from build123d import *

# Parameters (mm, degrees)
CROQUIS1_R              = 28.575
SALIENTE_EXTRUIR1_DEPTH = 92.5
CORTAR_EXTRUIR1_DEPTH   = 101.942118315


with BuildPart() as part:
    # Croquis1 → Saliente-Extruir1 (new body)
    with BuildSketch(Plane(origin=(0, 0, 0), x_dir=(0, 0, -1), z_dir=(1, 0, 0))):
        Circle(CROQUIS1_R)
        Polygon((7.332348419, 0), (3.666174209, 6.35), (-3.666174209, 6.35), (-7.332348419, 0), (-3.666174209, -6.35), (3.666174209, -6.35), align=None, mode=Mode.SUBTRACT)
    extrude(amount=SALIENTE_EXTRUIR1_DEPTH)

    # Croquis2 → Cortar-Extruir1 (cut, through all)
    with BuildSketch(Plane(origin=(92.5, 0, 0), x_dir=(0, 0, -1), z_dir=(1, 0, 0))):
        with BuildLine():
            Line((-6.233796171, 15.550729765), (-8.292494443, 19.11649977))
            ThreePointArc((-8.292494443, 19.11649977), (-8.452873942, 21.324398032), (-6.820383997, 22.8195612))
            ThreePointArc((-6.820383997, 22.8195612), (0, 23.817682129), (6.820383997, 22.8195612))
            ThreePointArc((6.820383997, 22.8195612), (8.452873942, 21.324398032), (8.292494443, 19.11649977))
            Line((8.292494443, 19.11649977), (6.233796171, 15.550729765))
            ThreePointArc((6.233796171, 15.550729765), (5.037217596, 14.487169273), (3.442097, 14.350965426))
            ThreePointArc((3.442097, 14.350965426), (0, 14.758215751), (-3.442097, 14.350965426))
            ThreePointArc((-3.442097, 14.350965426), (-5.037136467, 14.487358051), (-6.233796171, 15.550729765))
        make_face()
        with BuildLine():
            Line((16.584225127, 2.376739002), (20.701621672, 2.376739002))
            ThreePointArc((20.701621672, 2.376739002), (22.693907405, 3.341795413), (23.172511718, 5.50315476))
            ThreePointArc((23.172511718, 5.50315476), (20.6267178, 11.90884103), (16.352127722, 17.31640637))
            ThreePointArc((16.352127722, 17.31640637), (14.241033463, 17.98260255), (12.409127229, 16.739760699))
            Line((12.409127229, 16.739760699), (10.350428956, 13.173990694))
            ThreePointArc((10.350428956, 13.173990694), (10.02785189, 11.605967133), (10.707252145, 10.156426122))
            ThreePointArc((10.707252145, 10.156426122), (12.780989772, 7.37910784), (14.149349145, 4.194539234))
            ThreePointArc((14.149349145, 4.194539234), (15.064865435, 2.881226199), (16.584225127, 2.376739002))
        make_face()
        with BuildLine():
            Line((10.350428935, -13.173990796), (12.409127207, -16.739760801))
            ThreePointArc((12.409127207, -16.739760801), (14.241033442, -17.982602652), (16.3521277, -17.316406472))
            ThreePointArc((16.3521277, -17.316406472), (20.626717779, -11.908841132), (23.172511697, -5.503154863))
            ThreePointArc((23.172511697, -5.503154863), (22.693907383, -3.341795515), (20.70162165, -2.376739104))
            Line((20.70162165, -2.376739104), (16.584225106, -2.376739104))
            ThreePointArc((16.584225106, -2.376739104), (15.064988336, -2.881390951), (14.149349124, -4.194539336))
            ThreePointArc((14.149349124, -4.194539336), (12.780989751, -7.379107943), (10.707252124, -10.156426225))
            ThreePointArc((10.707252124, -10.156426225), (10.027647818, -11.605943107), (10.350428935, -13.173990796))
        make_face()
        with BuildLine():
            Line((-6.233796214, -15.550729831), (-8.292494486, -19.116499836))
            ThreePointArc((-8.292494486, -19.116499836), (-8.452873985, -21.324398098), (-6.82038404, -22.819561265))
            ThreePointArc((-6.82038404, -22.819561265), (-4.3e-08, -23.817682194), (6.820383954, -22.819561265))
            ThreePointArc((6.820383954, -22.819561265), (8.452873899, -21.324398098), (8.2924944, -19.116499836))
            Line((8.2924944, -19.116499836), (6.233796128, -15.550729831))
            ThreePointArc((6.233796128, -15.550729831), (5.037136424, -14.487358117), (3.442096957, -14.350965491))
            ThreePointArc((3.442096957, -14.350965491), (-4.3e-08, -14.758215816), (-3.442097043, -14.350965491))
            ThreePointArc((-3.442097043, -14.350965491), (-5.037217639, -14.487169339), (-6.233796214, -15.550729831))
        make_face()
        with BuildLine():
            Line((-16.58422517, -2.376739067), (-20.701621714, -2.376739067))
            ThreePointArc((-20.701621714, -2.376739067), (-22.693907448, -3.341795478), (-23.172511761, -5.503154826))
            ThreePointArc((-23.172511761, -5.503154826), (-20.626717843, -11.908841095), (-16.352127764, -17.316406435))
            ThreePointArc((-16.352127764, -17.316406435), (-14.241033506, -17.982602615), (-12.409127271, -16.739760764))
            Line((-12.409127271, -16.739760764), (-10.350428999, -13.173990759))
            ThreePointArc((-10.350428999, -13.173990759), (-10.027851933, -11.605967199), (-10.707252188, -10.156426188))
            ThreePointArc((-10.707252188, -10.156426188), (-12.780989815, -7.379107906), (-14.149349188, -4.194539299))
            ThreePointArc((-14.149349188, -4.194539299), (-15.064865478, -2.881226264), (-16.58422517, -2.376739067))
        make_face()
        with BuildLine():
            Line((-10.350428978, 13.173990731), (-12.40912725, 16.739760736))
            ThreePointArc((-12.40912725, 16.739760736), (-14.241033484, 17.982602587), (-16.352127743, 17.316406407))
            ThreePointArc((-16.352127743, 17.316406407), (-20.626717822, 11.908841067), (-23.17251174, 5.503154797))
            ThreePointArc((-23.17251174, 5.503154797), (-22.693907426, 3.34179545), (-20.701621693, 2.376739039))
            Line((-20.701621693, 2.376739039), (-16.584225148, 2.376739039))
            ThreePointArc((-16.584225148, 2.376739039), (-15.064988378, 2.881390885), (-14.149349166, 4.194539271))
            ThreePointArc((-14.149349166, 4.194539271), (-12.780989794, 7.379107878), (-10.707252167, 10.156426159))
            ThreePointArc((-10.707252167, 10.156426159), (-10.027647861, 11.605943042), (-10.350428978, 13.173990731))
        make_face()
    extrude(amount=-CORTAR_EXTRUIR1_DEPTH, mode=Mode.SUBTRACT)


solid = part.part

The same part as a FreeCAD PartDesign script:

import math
import FreeCAD as App
import Part
import Sketcher

V = App.Vector
Q = App.Units.Quantity


def add_polygon(sketch, points):
    """Adds a closed chain of lines whose ends are joined by coincident constraints."""
    first, n = sketch.GeometryCount, len(points)
    for a, b in zip(points, points[1:] + points[:1]):
        sketch.addGeometry(Part.LineSegment(App.Vector(*a, 0), App.Vector(*b, 0)), False)
    for i in range(n):
        sketch.addConstraint(Sketcher.Constraint("Coincident", first + i, 2, first + (i + 1) % n, 1))

doc = App.newDocument("Part")
body = doc.addObject("PartDesign::Body", "Body")

# Sketch on YZ plane
sketch1 = body.newObject("Sketcher::SketchObject", "Sketch")
sketch1.AttachmentSupport = (doc.getObject("YZ_Plane"), [""])
sketch1.MapMode = "FlatFace"
sketch1.addGeometry(Part.Circle(V(0, 0, 0), V(0, 0, 1), 29), False)  # 0
add_polygon(sketch1, [(6, -4), (0, -7), (-6, -4), (-6, 4), (0, 7), (6, 4)])  # lines 1-6
sketch1.addConstraint(Sketcher.Constraint("Vertical", 3))
sketch1.addConstraint(Sketcher.Constraint("Vertical", 6))
sketch1.addConstraint(Sketcher.Constraint("Coincident", 0, 3, -1, 1))
sketch1.addConstraint(Sketcher.Constraint("Symmetric", 1, 2, 4, 2, -1, 1))
sketch1.addConstraint(Sketcher.Constraint("Symmetric", 2, 2, 5, 2, -1, 1))
sketch1.addConstraint(Sketcher.Constraint("PointOnObject", 1, 2, -2))
sketch1.addConstraint(Sketcher.Constraint("Parallel", 1, 4))
sketch1.addConstraint(Sketcher.Constraint("Horizontal", 3, 2, 5, 2))
sketch1.addConstraint(Sketcher.Constraint("Diameter", 0, Q("57.15 mm")))
sketch1.addConstraint(Sketcher.Constraint("Angle", 1, Q("-150 deg")))
sketch1.addConstraint(Sketcher.Constraint("DistanceX", 3, 2, 5, 2, Q("12.7 mm")))
sketch1.addConstraint(Sketcher.Constraint("DistanceY", 3, 1, 3, 2, Q("7.332348 mm")))
pad1 = body.newObject("PartDesign::Pad", "Pad")
pad1.Profile = sketch1
pad1.Length = 92.5

# Sketch on YZ plane
sketch2 = body.newObject("Sketcher::SketchObject", "Sketch001")
sketch2.AttachmentSupport = (doc.getObject("YZ_Plane"), [""])
sketch2.MapMode = "FlatFace"
sketch2.AttachmentOffset = App.Placement(V(0, 0, 92.5), App.Rotation())
sketch2.addGeometry(Part.LineSegment(V(19.1165, 8.292494, 0), V(15.55073, 6.233796, 0)), False)
sketch2.addGeometry(Part.ArcOfCircle(Part.Circle(V(16.82098, 4.034236, 0), V(0, 0, 1), 2.54), math.radians(120.006515), math.radians(193.48116)), False)
sketch2.addGeometry(Part.ArcOfCircle(Part.Circle(V(0.008216, 0, 0), V(0, 0, 1), 14.75), math.radians(-13.495118), math.radians(13.495118)), False)
sketch2.addGeometry(Part.ArcOfCircle(Part.Circle(V(16.82003, -4.034644, 0), V(0, 0, 1), 2.539171), math.radians(166.504882), math.radians(240.007443)), False)
sketch2.addGeometry(Part.LineSegment(V(15.55073, -6.233796, 0), V(19.1165, -8.292494, 0)), False)
sketch2.addGeometry(Part.ArcOfCircle(Part.Circle(V(20.386076, -6.092545, 0), V(0, 0, 1), 2.54), math.radians(-119.98896), math.radians(-16.651563)), False)
sketch2.addGeometry(Part.ArcOfCircle(Part.Circle(V(0.016015, 0, 0), V(0, 0, 1), 23.801667), math.radians(-16.651563), math.radians(16.651563)), False)
sketch2.addGeometry(Part.ArcOfCircle(Part.Circle(V(20.386076, 6.092545, 0), V(0, 0, 1), 2.54), math.radians(16.651563), math.radians(119.98896)), False)
sketch2.addGeometry(Part.LineSegment(V(2.376739, -16.584225, 0), V(2.376739, -20.701622, 0)), False)
sketch2.addGeometry(Part.ArcOfCircle(Part.Circle(V(4.916739, -20.701132, 0), V(0, 0, 1), 2.54), math.radians(-179.98896), math.radians(-76.651563)), False)
sketch2.addGeometry(Part.ArcOfCircle(Part.Circle(V(0.008008, -0.01387, 0), V(0, 0, 1), 23.801667), math.radians(-76.651563), math.radians(-43.348437)), False)
sketch2.addGeometry(Part.ArcOfCircle(Part.Circle(V(15.469337, -14.608587, 0), V(0, 0, 1), 2.54), math.radians(-43.348437), math.radians(59.98896)), False)
sketch2.addGeometry(Part.LineSegment(V(16.739761, -12.409127, 0), V(13.173991, -10.350429, 0)), False)
sketch2.addGeometry(Part.ArcOfCircle(Part.Circle(V(11.904241, -12.550278, 0), V(0, 0, 1), 2.54), math.radians(60.006515), math.radians(133.48116)), False)
sketch2.addGeometry(Part.ArcOfCircle(Part.Circle(V(0.004108, -0.007115, 0), V(0, 0, 1), 14.75), math.radians(-73.495118), math.radians(-46.504882)), False)
sketch2.addGeometry(Part.ArcOfCircle(Part.Circle(V(4.91591, -16.583895, 0), V(0, 0, 1), 2.539171), math.radians(106.504882), math.radians(180.007443)), False)
sketch2.addGeometry(Part.LineSegment(V(-13.173991, -10.350429, 0), V(-16.739761, -12.409127, 0)), False)
sketch2.addGeometry(Part.ArcOfCircle(Part.Circle(V(-15.469337, -14.608587, 0), V(0, 0, 1), 2.54), math.radians(120.01104), math.radians(223.348437)), False)
sketch2.addGeometry(Part.ArcOfCircle(Part.Circle(V(-0.008008, -0.01387, 0), V(0, 0, 1), 23.801667), math.radians(-136.651563), math.radians(-103.348437)), False)
sketch2.addGeometry(Part.ArcOfCircle(Part.Circle(V(-4.916739, -20.701132, 0), V(0, 0, 1), 2.54), math.radians(-103.348437), math.radians(-0.01104)), False)
sketch2.addGeometry(Part.LineSegment(V(-2.376739, -20.701622, 0), V(-2.376739, -16.584225, 0)), False)
sketch2.addGeometry(Part.ArcOfCircle(Part.Circle(V(-4.916739, -16.584514, 0), V(0, 0, 1), 2.54), math.radians(0.006515), math.radians(73.48116)), False)
sketch2.addGeometry(Part.ArcOfCircle(Part.Circle(V(-0.004108, -0.007115, 0), V(0, 0, 1), 14.75), math.radians(-133.495118), math.radians(-106.504882)), False)
sketch2.addGeometry(Part.ArcOfCircle(Part.Circle(V(-11.904119, -12.549251, 0), V(0, 0, 1), 2.539171), math.radians(46.504882), math.radians(120.007443)), False)
sketch2.addGeometry(Part.LineSegment(V(-15.55073, 6.233796, 0), V(-19.1165, 8.292494, 0)), False)
sketch2.addGeometry(Part.ArcOfCircle(Part.Circle(V(-20.386076, 6.092545, 0), V(0, 0, 1), 2.54), math.radians(60.01104), math.radians(163.348437)), False)
sketch2.addGeometry(Part.ArcOfCircle(Part.Circle(V(-0.016016, 0, 0), V(0, 0, 1), 23.801667), math.radians(163.348437), math.radians(196.651563)), False)
sketch2.addGeometry(Part.ArcOfCircle(Part.Circle(V(-20.386076, -6.092545, 0), V(0, 0, 1), 2.54), math.radians(-163.348437), math.radians(-60.01104)), False)
sketch2.addGeometry(Part.LineSegment(V(-19.1165, -8.292494, 0), V(-15.55073, -6.233796, 0)), False)
sketch2.addGeometry(Part.ArcOfCircle(Part.Circle(V(-16.82098, -4.034236, 0), V(0, 0, 1), 2.54), math.radians(-59.993485), math.radians(13.48116)), False)
sketch2.addGeometry(Part.ArcOfCircle(Part.Circle(V(-0.008216, 0, 0), V(0, 0, 1), 14.75), math.radians(166.504882), math.radians(193.495118)), False)
sketch2.addGeometry(Part.ArcOfCircle(Part.Circle(V(-16.82003, 4.034644, 0), V(0, 0, 1), 2.539171), math.radians(-13.495118), math.radians(60.007443)), False)
sketch2.addGeometry(Part.LineSegment(V(-2.376739, 16.584225, 0), V(-2.376739, 20.701622, 0)), False)
sketch2.addGeometry(Part.ArcOfCircle(Part.Circle(V(-4.916739, 20.701132, 0), V(0, 0, 1), 2.54), math.radians(0.01104), math.radians(103.348437)), False)
sketch2.addGeometry(Part.ArcOfCircle(Part.Circle(V(-0.008008, 0.01387, 0), V(0, 0, 1), 23.801667), math.radians(103.348437), math.radians(136.651563)), False)
sketch2.addGeometry(Part.ArcOfCircle(Part.Circle(V(-15.469337, 14.608587, 0), V(0, 0, 1), 2.54), math.radians(136.651563), math.radians(239.98896)), False)
sketch2.addGeometry(Part.LineSegment(V(-16.739761, 12.409127, 0), V(-13.173991, 10.350429, 0)), False)
sketch2.addGeometry(Part.ArcOfCircle(Part.Circle(V(-11.904241, 12.550278, 0), V(0, 0, 1), 2.54), math.radians(-119.993485), math.radians(-46.51884)), False)
sketch2.addGeometry(Part.ArcOfCircle(Part.Circle(V(-0.004108, 0.007115, 0), V(0, 0, 1), 14.75), math.radians(106.504882), math.radians(133.495118)), False)
sketch2.addGeometry(Part.ArcOfCircle(Part.Circle(V(-4.91591, 16.583895, 0), V(0, 0, 1), 2.539171), math.radians(-73.495118), math.radians(0.007443)), False)
sketch2.addGeometry(Part.LineSegment(V(13.173991, 10.350429, 0), V(16.739761, 12.409127, 0)), False)
sketch2.addGeometry(Part.ArcOfCircle(Part.Circle(V(15.469337, 14.608587, 0), V(0, 0, 1), 2.54), math.radians(-59.98896), math.radians(43.348437)), False)
sketch2.addGeometry(Part.ArcOfCircle(Part.Circle(V(0.008008, 0.01387, 0), V(0, 0, 1), 23.801667), math.radians(43.348437), math.radians(76.651563)), False)
sketch2.addGeometry(Part.ArcOfCircle(Part.Circle(V(4.916739, 20.701132, 0), V(0, 0, 1), 2.54), math.radians(76.651563), math.radians(179.98896)), False)
sketch2.addGeometry(Part.LineSegment(V(2.376739, 20.701622, 0), V(2.376739, 16.584225, 0)), False)
sketch2.addGeometry(Part.ArcOfCircle(Part.Circle(V(4.916739, 16.584514, 0), V(0, 0, 1), 2.54), math.radians(-179.993485), math.radians(-106.51884)), False)
sketch2.addGeometry(Part.ArcOfCircle(Part.Circle(V(0.004108, 0.007115, 0), V(0, 0, 1), 14.75), math.radians(46.504882), math.radians(73.495118)), False)
sketch2.addGeometry(Part.ArcOfCircle(Part.Circle(V(11.904119, 12.549251, 0), V(0, 0, 1), 2.539171), math.radians(-133.495118), math.radians(-59.992557)), False)
sketch2.addConstraint(Sketcher.Constraint("Coincident", 0, 2, 1, 1))
sketch2.addConstraint(Sketcher.Constraint("Coincident", 1, 2, 2, 2))
sketch2.addConstraint(Sketcher.Constraint("Tangent", 2, 1, 3, 1))
sketch2.addConstraint(Sketcher.Constraint("Coincident", 3, 2, 4, 1))
sketch2.addConstraint(Sketcher.Constraint("Coincident", 4, 2, 5, 1))
sketch2.addConstraint(Sketcher.Constraint("Tangent", 5, 2, 6, 1))
sketch2.addConstraint(Sketcher.Constraint("Tangent", 6, 2, 7, 1))
sketch2.addConstraint(Sketcher.Constraint("Coincident", 7, 2, 0, 1))
sketch2.addConstraint(Sketcher.Constraint("Coincident", 8, 2, 9, 1))
sketch2.addConstraint(Sketcher.Constraint("Tangent", 9, 2, 10, 1))
sketch2.addConstraint(Sketcher.Constraint("Tangent", 10, 2, 11, 1))
sketch2.addConstraint(Sketcher.Constraint("Coincident", 11, 2, 12, 1))
sketch2.addConstraint(Sketcher.Constraint("Coincident", 12, 2, 13, 1))
sketch2.addConstraint(Sketcher.Constraint("Coincident", 13, 2, 14, 2))
sketch2.addConstraint(Sketcher.Constraint("Tangent", 14, 1, 15, 1))
sketch2.addConstraint(Sketcher.Constraint("Coincident", 15, 2, 8, 1))
sketch2.addConstraint(Sketcher.Constraint("Coincident", 16, 2, 17, 1))
sketch2.addConstraint(Sketcher.Constraint("Tangent", 17, 2, 18, 1))
sketch2.addConstraint(Sketcher.Constraint("Tangent", 18, 2, 19, 1))
sketch2.addConstraint(Sketcher.Constraint("Coincident", 19, 2, 20, 1))
sketch2.addConstraint(Sketcher.Constraint("Coincident", 20, 2, 21, 1))
sketch2.addConstraint(Sketcher.Constraint("Coincident", 21, 2, 22, 2))
sketch2.addConstraint(Sketcher.Constraint("Tangent", 22, 1, 23, 1))
sketch2.addConstraint(Sketcher.Constraint("Coincident", 23, 2, 16, 1))
sketch2.addConstraint(Sketcher.Constraint("Coincident", 24, 2, 25, 1))
sketch2.addConstraint(Sketcher.Constraint("Tangent", 25, 2, 26, 1))
sketch2.addConstraint(Sketcher.Constraint("Tangent", 26, 2, 27, 1))
sketch2.addConstraint(Sketcher.Constraint("Coincident", 27, 2, 28, 1))
sketch2.addConstraint(Sketcher.Constraint("Coincident", 28, 2, 29, 1))
sketch2.addConstraint(Sketcher.Constraint("Coincident", 29, 2, 30, 2))
sketch2.addConstraint(Sketcher.Constraint("Tangent", 30, 1, 31, 1))
sketch2.addConstraint(Sketcher.Constraint("Coincident", 31, 2, 24, 1))
sketch2.addConstraint(Sketcher.Constraint("Coincident", 32, 2, 33, 1))
sketch2.addConstraint(Sketcher.Constraint("Tangent", 33, 2, 34, 1))
sketch2.addConstraint(Sketcher.Constraint("Tangent", 34, 2, 35, 1))
sketch2.addConstraint(Sketcher.Constraint("Coincident", 35, 2, 36, 1))
sketch2.addConstraint(Sketcher.Constraint("Coincident", 36, 2, 37, 1))
sketch2.addConstraint(Sketcher.Constraint("Coincident", 37, 2, 38, 2))
sketch2.addConstraint(Sketcher.Constraint("Tangent", 38, 1, 39, 1))
sketch2.addConstraint(Sketcher.Constraint("Coincident", 39, 2, 32, 1))
sketch2.addConstraint(Sketcher.Constraint("Coincident", 40, 2, 41, 1))
sketch2.addConstraint(Sketcher.Constraint("Tangent", 41, 2, 42, 1))
sketch2.addConstraint(Sketcher.Constraint("Tangent", 42, 2, 43, 1))
sketch2.addConstraint(Sketcher.Constraint("Coincident", 43, 2, 44, 1))
sketch2.addConstraint(Sketcher.Constraint("Coincident", 44, 2, 45, 1))
sketch2.addConstraint(Sketcher.Constraint("Coincident", 45, 2, 46, 2))
sketch2.addConstraint(Sketcher.Constraint("Tangent", 46, 1, 47, 1))
sketch2.addConstraint(Sketcher.Constraint("Coincident", 47, 2, 40, 1))
sketch2.addConstraint(Sketcher.Constraint("Vertical", 8))
sketch2.addConstraint(Sketcher.Constraint("Vertical", 20))
sketch2.addConstraint(Sketcher.Constraint("Vertical", 32))
sketch2.addConstraint(Sketcher.Constraint("Vertical", 44))
sketch2.addConstraint(Sketcher.Constraint("Equal", 1, 5))
sketch2.addConstraint(Sketcher.Constraint("Equal", 5, 7))
sketch2.addConstraint(Sketcher.Constraint("Equal", 7, 9))
sketch2.addConstraint(Sketcher.Constraint("Equal", 6, 10))
sketch2.addConstraint(Sketcher.Constraint("Equal", 9, 11))
sketch2.addConstraint(Sketcher.Constraint("Equal", 11, 13))
sketch2.addConstraint(Sketcher.Constraint("Equal", 2, 14))
sketch2.addConstraint(Sketcher.Constraint("Equal", 3, 15))
sketch2.addConstraint(Sketcher.Constraint("Equal", 13, 17))
sketch2.addConstraint(Sketcher.Constraint("Equal", 10, 18))
sketch2.addConstraint(Sketcher.Constraint("Equal", 17, 19))
sketch2.addConstraint(Sketcher.Constraint("Equal", 19, 21))
sketch2.addConstraint(Sketcher.Constraint("Equal", 14, 22))
sketch2.addConstraint(Sketcher.Constraint("Equal", 15, 23))
sketch2.addConstraint(Sketcher.Constraint("Equal", 21, 25))
sketch2.addConstraint(Sketcher.Constraint("Equal", 18, 26))
sketch2.addConstraint(Sketcher.Constraint("Equal", 25, 27))
sketch2.addConstraint(Sketcher.Constraint("Equal", 27, 29))
sketch2.addConstraint(Sketcher.Constraint("Equal", 22, 30))
sketch2.addConstraint(Sketcher.Constraint("Equal", 23, 31))
sketch2.addConstraint(Sketcher.Constraint("Equal", 29, 33))
sketch2.addConstraint(Sketcher.Constraint("Equal", 26, 34))
sketch2.addConstraint(Sketcher.Constraint("Equal", 33, 35))
sketch2.addConstraint(Sketcher.Constraint("Equal", 35, 37))
sketch2.addConstraint(Sketcher.Constraint("Equal", 30, 38))
sketch2.addConstraint(Sketcher.Constraint("Equal", 31, 39))
sketch2.addConstraint(Sketcher.Constraint("Equal", 37, 41))
sketch2.addConstraint(Sketcher.Constraint("Equal", 34, 42))
sketch2.addConstraint(Sketcher.Constraint("Equal", 41, 43))
sketch2.addConstraint(Sketcher.Constraint("Equal", 43, 45))
sketch2.addConstraint(Sketcher.Constraint("Equal", 38, 46))
sketch2.addConstraint(Sketcher.Constraint("Equal", 39, 47))
sketch2.addConstraint(Sketcher.Constraint("Symmetric", 5, 3, 25, 3, -1, 1))
sketch2.addConstraint(Sketcher.Constraint("Symmetric", 7, 3, 27, 3, -1, 1))
sketch2.addConstraint(Sketcher.Constraint("Symmetric", 1, 3, 29, 3, -1, 1))
sketch2.addConstraint(Sketcher.Constraint("Symmetric", 2, 3, 30, 3, -1, 1))
sketch2.addConstraint(Sketcher.Constraint("Symmetric", 9, 3, 33, 3, -1, 1))
sketch2.addConstraint(Sketcher.Constraint("Symmetric", 11, 3, 35, 3, -1, 1))
sketch2.addConstraint(Sketcher.Constraint("Symmetric", 13, 3, 37, 3, -1, 1))
sketch2.addConstraint(Sketcher.Constraint("Symmetric", 17, 3, 41, 3, -1, 1))
sketch2.addConstraint(Sketcher.Constraint("Symmetric", 19, 3, 43, 3, -1, 1))
sketch2.addConstraint(Sketcher.Constraint("Symmetric", 22, 3, 46, 3, -1, 1))
sketch2.addConstraint(Sketcher.Constraint("Symmetric", 3, 2, 31, 2, -1, 1))
sketch2.addConstraint(Sketcher.Constraint("Symmetric", 23, 2, 47, 2, -1, 1))
sketch2.addConstraint(Sketcher.Constraint("Symmetric", 11, 3, 17, 3, -2))
sketch2.addConstraint(Sketcher.Constraint("Symmetric", 9, 3, 19, 3, -2))
sketch2.addConstraint(Sketcher.Constraint("Symmetric", 14, 3, 22, 3, -2))
sketch2.addConstraint(Sketcher.Constraint("Symmetric", 7, 3, 25, 3, -2))
sketch2.addConstraint(Sketcher.Constraint("Symmetric", 12, 2, 23, 2, -2))
sketch2.addConstraint(Sketcher.Constraint("Symmetric", 3, 2, 28, 2, -2))
sketch2.addConstraint(Sketcher.Constraint("Symmetric", 2, 1, 29, 2, -2))
sketch2.addConstraint(Sketcher.Constraint("Symmetric", 38, 1, 45, 2, -2))
sketch2.addConstraint(Sketcher.Constraint("Parallel", 4, 12))
sketch2.addConstraint(Sketcher.Constraint("Horizontal", 11, 2, 16, 2))
sketch2.addConstraint(Sketcher.Constraint("Horizontal", 8, 2, 19, 2))
sketch2.addConstraint(Sketcher.Constraint("Horizontal", 15, 2, 20, 2))
sketch2.addConstraint(Sketcher.Constraint("Horizontal", 14, 1, 21, 2))
sketch2.addConstraint(Sketcher.Constraint("Horizontal", 13, 2, 22, 1))
sketch2.addConstraint(Sketcher.Constraint("Horizontal", 7, 2, 24, 2))
sketch2.addConstraint(Sketcher.Constraint("Horizontal", 4, 2, 27, 2))
sketch2.addConstraint(Sketcher.Constraint("Horizontal", 0, 2, 31, 2))
sketch2.addConstraint(Sketcher.Constraint("Horizontal", 35, 2, 40, 2))
sketch2.addConstraint(Sketcher.Constraint("Horizontal", 32, 2, 43, 2))
sketch2.addConstraint(Sketcher.Constraint("Horizontal", 39, 2, 44, 2))
sketch2.addConstraint(Sketcher.Constraint("Horizontal", 37, 2, 46, 1))
sketch2.addConstraint(Sketcher.Constraint("Horizontal", 36, 2, 47, 2))
sketch2.addConstraint(Sketcher.Constraint("Vertical", 4, 2, 7, 2))
sketch2.addConstraint(Sketcher.Constraint("Vertical", 16, 2, 35, 2))
sketch2.addConstraint(Sketcher.Constraint("Equal", 20, 32))
sketch2.addConstraint(Sketcher.Constraint("Equal", 4, 12))
sketch2.addConstraint(Sketcher.Constraint("Angle", 0, Q("-150 deg")))
sketch2.addConstraint(Sketcher.Constraint("Radius", 1, Q("2.54 mm")))
sketch2.addConstraint(Sketcher.Constraint("Radius", 2, Q("14.75 mm")))
sketch2.addConstraint(Sketcher.Constraint("Radius", 3, Q("2.539171 mm")))
sketch2.addConstraint(Sketcher.Constraint("Radius", 6, Q("23.801667 mm")))
sketch2.addConstraint(Sketcher.Constraint("DistanceX", -1, 1, 4, 2, Q("19.1165 mm")))
sketch2.addConstraint(Sketcher.Constraint("DistanceY", 8, 2, 8, 1, Q("4.117397 mm")))
sketch2.addConstraint(Sketcher.Constraint("DistanceX", -1, 1, 1, 3, Q("16.82098 mm")))
sketch2.addConstraint(Sketcher.Constraint("DistanceX", -1, 1, 9, 3, Q("4.916739 mm")))
sketch2.addConstraint(Sketcher.Constraint("DistanceY", 10, 3, -1, 1, Q("0.01387 mm")))
sketch2.addConstraint(Sketcher.Constraint("DistanceX", -1, 1, 13, 3, Q("11.904241 mm")))
sketch2.addConstraint(Sketcher.Constraint("DistanceY", 23, 3, -1, 1, Q("12.549251 mm")))
sketch2.addConstraint(Sketcher.Constraint("DistanceX", -1, 1, 0, 2, Q("15.55073 mm")))
sketch2.addConstraint(Sketcher.Constraint("DistanceX", -1, 1, 5, 2, Q("22.819561 mm")))
sketch2.addConstraint(Sketcher.Constraint("DistanceY", 8, 2, -1, 1, Q("20.701622 mm")))
sketch2.addConstraint(Sketcher.Constraint("DistanceY", 9, 2, -1, 1, Q("23.172512 mm")))
sketch2.addConstraint(Sketcher.Constraint("DistanceX", -1, 1, 11, 2, Q("16.739761 mm")))
sketch2.addConstraint(Sketcher.Constraint("DistanceX", -1, 1, 14, 1, Q("4.194539 mm")))
sketch2.addConstraint(Sketcher.Constraint("DistanceY", -1, 1, 32, 2, Q("20.701622 mm")))
sketch2.addConstraint(Sketcher.Constraint("DistanceY", -1, 1, 1, 3, Q("4.034236 mm")))
pocket1 = body.newObject("PartDesign::Pocket", "Pocket")
pocket1.Profile = sketch2
pocket1.Type = "ThroughAll"

doc.recompute()
